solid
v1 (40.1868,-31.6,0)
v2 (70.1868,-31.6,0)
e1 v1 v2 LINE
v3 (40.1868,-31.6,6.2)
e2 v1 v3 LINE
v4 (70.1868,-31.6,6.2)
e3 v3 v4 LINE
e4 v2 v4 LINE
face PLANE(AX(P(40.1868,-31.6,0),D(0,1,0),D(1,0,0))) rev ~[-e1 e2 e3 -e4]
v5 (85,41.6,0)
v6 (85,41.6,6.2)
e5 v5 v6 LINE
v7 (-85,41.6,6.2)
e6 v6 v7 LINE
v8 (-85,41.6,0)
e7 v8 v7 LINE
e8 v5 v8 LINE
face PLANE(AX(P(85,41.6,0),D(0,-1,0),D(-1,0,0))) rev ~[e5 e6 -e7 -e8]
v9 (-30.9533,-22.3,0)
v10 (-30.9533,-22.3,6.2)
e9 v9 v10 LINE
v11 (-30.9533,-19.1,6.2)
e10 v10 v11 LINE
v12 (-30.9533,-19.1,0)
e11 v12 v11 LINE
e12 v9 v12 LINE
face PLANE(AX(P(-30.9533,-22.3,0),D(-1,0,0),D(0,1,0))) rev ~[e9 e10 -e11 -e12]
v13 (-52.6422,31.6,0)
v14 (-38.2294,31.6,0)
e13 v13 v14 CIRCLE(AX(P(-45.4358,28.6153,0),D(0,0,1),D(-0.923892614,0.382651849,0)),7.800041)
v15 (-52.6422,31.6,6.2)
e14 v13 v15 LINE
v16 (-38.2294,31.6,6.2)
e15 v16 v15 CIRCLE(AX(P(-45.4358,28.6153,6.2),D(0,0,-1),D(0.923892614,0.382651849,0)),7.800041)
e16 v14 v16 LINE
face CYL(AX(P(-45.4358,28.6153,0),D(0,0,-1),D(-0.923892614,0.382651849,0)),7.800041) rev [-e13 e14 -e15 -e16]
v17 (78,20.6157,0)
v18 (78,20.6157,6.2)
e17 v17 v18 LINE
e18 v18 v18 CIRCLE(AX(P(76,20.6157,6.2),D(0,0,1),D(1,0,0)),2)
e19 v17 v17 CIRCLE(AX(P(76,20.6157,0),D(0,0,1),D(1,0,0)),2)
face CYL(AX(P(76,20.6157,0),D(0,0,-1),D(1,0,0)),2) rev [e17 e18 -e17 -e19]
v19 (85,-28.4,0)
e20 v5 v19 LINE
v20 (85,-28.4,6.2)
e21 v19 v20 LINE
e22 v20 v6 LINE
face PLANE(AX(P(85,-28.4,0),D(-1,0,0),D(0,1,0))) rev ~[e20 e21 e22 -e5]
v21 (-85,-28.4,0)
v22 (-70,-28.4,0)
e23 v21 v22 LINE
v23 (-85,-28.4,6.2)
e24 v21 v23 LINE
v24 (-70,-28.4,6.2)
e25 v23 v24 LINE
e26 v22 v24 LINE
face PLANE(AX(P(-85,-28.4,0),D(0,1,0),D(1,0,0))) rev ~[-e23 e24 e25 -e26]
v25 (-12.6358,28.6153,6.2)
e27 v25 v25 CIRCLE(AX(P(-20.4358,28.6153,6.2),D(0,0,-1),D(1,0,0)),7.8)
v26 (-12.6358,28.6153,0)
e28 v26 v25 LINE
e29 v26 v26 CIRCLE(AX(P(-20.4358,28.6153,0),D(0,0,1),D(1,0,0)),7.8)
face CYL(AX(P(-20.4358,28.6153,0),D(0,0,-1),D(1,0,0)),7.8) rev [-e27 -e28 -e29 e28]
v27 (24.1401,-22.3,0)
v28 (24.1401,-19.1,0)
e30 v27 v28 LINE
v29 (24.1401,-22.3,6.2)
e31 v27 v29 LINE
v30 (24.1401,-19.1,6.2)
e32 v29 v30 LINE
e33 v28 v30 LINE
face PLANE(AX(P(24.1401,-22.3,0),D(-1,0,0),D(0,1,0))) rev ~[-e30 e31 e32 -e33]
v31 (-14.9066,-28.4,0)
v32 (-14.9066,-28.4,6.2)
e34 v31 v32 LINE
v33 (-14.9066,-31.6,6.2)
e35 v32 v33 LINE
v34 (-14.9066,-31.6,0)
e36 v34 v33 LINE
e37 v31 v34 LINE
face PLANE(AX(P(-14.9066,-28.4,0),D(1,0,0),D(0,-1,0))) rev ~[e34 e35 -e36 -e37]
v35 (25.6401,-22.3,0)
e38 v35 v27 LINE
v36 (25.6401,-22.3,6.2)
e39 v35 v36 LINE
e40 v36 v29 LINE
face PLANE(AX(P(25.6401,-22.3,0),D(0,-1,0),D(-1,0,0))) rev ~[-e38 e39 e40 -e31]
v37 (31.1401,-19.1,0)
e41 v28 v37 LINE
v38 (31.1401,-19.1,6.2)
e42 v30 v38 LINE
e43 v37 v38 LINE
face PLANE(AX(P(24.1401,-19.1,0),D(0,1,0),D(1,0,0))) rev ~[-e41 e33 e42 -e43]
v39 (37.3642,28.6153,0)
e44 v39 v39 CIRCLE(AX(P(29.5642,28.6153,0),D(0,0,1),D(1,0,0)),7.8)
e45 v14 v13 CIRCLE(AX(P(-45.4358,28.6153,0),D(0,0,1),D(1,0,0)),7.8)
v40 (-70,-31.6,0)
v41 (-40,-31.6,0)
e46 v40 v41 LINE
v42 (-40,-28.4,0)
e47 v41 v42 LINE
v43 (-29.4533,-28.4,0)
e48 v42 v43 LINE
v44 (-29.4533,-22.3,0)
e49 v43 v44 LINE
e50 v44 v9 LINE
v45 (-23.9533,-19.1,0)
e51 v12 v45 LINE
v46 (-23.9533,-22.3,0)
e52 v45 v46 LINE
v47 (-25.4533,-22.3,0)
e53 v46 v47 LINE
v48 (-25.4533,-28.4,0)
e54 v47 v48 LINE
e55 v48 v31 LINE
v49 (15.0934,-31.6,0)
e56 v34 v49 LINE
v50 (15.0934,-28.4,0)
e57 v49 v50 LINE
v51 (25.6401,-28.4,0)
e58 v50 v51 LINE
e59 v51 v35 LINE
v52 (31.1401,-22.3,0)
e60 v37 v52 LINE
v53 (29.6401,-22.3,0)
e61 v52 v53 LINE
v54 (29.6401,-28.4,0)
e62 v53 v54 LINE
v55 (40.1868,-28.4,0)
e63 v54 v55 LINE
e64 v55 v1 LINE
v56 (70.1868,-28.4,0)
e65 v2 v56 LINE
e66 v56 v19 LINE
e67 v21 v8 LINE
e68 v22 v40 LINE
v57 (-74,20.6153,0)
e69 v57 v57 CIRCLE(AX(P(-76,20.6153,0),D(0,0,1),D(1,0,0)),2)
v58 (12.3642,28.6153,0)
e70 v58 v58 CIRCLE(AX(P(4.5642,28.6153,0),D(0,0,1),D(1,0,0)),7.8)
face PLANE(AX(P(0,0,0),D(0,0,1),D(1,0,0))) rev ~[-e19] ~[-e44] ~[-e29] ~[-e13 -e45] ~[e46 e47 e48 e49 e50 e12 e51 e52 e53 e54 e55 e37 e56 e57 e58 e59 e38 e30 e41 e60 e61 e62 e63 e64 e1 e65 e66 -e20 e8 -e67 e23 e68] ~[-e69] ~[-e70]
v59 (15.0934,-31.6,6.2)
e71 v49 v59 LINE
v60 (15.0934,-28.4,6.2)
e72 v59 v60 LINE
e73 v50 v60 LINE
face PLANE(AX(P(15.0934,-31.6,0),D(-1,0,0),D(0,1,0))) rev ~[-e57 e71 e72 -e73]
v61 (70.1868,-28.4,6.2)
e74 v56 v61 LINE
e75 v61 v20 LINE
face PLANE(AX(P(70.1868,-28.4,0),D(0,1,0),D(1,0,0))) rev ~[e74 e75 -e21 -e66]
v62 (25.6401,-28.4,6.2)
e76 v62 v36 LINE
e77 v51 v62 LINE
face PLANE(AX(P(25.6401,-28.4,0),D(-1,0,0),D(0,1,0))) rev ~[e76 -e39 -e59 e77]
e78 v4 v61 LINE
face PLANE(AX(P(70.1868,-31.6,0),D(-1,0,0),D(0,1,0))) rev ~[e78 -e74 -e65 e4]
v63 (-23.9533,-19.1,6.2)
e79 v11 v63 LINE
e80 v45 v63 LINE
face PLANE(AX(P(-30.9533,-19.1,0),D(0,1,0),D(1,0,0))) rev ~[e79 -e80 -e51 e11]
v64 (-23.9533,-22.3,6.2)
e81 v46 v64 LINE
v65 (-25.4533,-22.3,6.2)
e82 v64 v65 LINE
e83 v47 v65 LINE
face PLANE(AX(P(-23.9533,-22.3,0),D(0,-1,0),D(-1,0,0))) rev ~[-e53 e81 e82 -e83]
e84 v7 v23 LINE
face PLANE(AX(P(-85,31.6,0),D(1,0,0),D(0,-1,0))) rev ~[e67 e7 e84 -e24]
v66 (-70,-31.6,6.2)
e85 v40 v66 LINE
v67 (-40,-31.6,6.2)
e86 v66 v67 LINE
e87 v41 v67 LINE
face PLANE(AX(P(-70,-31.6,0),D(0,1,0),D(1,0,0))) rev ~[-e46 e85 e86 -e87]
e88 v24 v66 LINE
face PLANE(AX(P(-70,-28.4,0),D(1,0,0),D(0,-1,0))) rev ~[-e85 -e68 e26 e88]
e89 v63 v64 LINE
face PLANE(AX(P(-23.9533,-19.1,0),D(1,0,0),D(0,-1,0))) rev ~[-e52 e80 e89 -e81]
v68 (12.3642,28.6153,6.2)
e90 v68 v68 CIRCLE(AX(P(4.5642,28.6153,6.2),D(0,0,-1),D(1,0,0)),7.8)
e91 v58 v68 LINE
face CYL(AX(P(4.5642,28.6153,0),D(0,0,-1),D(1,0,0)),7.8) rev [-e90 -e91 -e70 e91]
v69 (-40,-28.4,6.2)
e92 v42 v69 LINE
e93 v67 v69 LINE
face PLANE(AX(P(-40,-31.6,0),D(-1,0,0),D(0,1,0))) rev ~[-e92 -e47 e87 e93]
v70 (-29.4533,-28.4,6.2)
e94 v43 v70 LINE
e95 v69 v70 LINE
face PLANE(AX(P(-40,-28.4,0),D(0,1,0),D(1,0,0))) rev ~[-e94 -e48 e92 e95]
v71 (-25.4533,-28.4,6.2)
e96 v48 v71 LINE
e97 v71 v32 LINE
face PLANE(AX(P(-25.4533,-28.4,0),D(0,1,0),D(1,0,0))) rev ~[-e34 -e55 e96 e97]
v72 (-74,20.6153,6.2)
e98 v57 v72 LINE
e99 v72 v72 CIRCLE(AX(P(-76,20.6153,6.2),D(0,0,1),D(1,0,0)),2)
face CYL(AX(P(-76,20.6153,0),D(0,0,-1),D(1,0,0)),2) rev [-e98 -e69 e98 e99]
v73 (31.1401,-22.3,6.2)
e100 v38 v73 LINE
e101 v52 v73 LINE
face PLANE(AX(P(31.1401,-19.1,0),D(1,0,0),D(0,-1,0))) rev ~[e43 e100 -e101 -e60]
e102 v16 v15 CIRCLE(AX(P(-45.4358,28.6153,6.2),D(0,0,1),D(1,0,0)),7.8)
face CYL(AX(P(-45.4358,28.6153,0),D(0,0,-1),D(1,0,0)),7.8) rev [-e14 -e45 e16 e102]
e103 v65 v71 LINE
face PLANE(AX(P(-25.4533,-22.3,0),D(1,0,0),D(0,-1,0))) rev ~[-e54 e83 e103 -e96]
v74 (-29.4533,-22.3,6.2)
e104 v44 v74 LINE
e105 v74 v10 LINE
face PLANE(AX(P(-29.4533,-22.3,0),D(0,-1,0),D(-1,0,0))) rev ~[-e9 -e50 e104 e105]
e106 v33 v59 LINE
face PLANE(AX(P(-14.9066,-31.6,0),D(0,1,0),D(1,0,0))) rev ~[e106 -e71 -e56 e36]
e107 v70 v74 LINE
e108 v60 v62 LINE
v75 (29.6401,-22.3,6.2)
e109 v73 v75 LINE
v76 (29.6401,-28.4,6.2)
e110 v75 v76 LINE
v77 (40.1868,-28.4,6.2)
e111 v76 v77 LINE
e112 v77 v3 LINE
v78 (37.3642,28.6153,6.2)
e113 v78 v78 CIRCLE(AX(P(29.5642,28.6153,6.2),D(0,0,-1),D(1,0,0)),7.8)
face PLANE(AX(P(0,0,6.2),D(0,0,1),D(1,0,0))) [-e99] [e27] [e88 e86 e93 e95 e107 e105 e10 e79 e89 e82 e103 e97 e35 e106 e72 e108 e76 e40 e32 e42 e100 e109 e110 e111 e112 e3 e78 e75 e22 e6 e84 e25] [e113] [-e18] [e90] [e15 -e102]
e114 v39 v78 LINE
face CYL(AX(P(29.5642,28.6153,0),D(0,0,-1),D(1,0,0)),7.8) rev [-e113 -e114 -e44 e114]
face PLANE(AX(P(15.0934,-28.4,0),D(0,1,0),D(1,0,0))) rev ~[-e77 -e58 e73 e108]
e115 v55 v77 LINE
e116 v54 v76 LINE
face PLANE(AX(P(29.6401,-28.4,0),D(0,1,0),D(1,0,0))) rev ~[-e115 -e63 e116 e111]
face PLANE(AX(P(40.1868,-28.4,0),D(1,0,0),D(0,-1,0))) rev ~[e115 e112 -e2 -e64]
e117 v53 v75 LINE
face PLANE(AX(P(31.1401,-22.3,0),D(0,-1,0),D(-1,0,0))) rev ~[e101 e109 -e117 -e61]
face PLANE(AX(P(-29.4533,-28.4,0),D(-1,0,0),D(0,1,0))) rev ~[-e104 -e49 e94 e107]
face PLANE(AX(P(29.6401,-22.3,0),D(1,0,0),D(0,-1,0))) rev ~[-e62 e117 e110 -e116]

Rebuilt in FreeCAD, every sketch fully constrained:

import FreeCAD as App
import Part
import Sketcher

V = App.Vector
Q = App.Units.Quantity

doc = App.newDocument("Part")
body = doc.addObject("PartDesign::Body", "Body")

sketch1 = doc.addObject("Sketcher::SketchObject", "Sketch")
body.addObject(sketch1)
sketch1.AttachmentSupport = (doc.XY_Plane, [""])
sketch1.MapMode = "FlatFace"
sketch1.addGeometry(Part.LineSegment(V(15.0934, -28.4, 0), V(25.6401, -28.4, 0)), False)
sketch1.addGeometry(Part.LineSegment(V(25.6401, -28.4, 0), V(25.6401, -22.3, 0)), False)
sketch1.addGeometry(Part.LineSegment(V(25.6401, -22.3, 0), V(24.1401, -22.3, 0)), False)
sketch1.addGeometry(Part.LineSegment(V(24.1401, -22.3, 0), V(24.1401, -19.1, 0)), False)
sketch1.addGeometry(Part.LineSegment(V(24.1401, -19.1, 0), V(31.1401, -19.1, 0)), False)
sketch1.addGeometry(Part.LineSegment(V(31.1401, -19.1, 0), V(31.1401, -22.3, 0)), False)
sketch1.addGeometry(Part.LineSegment(V(31.1401, -22.3, 0), V(29.6401, -22.3, 0)), False)
sketch1.addGeometry(Part.LineSegment(V(29.6401, -22.3, 0), V(29.6401, -28.4, 0)), False)
sketch1.addGeometry(Part.LineSegment(V(29.6401, -28.4, 0), V(40.1868, -28.4, 0)), False)
sketch1.addGeometry(Part.LineSegment(V(40.1868, -28.4, 0), V(40.1868, -31.6, 0)), False)
sketch1.addGeometry(Part.LineSegment(V(40.1868, -31.6, 0), V(70.1868, -31.6, 0)), False)
sketch1.addGeometry(Part.LineSegment(V(70.1868, -31.6, 0), V(70.1868, -28.4, 0)), False)
sketch1.addGeometry(Part.LineSegment(V(70.1868, -28.4, 0), V(85, -28.4, 0)), False)
sketch1.addGeometry(Part.LineSegment(V(85, -28.4, 0), V(85, 41.6, 0)), False)
sketch1.addGeometry(Part.LineSegment(V(85, 41.6, 0), V(-85, 41.6, 0)), False)
sketch1.addGeometry(Part.LineSegment(V(-85, 41.6, 0), V(-85, -28.4, 0)), False)
sketch1.addGeometry(Part.LineSegment(V(-85, -28.4, 0), V(-70, -28.4, 0)), False)
sketch1.addGeometry(Part.LineSegment(V(-70, -28.4, 0), V(-70, -31.6, 0)), False)
sketch1.addGeometry(Part.LineSegment(V(-70, -31.6, 0), V(-40, -31.6, 0)), False)
sketch1.addGeometry(Part.LineSegment(V(-40, -31.6, 0), V(-40, -28.4, 0)), False)
sketch1.addGeometry(Part.LineSegment(V(-40, -28.4, 0), V(-29.4533, -28.4, 0)), False)
sketch1.addGeometry(Part.LineSegment(V(-29.4533, -28.4, 0), V(-29.4533, -22.3, 0)), False)
sketch1.addGeometry(Part.LineSegment(V(-29.4533, -22.3, 0), V(-30.9533, -22.3, 0)), False)
sketch1.addGeometry(Part.LineSegment(V(-30.9533, -22.3, 0), V(-30.9533, -19.1, 0)), False)
sketch1.addGeometry(Part.LineSegment(V(-30.9533, -19.1, 0), V(-23.9533, -19.1, 0)), False)
sketch1.addGeometry(Part.LineSegment(V(-23.9533, -19.1, 0), V(-23.9533, -22.3, 0)), False)
sketch1.addGeometry(Part.LineSegment(V(-23.9533, -22.3, 0), V(-25.4533, -22.3, 0)), False)
sketch1.addGeometry(Part.LineSegment(V(-25.4533, -22.3, 0), V(-25.4533, -28.4, 0)), False)
sketch1.addGeometry(Part.LineSegment(V(-25.4533, -28.4, 0), V(-14.9066, -28.4, 0)), False)
sketch1.addGeometry(Part.LineSegment(V(-14.9066, -28.4, 0), V(-14.9066, -31.6, 0)), False)
sketch1.addGeometry(Part.LineSegment(V(-14.9066, -31.6, 0), V(15.0934, -31.6, 0)), False)
sketch1.addGeometry(Part.LineSegment(V(15.0934, -31.6, 0), V(15.0934, -28.4, 0)), False)
sketch1.addGeometry(Part.Circle(V(-45.4358, 28.6153, 0), V(0, 0, 1), 7.8), False)
sketch1.addGeometry(Part.Circle(V(-20.4358, 28.6153, 0), V(0, 0, 1), 7.8), False)
sketch1.addGeometry(Part.Circle(V(4.5642, 28.6153, 0), V(0, 0, 1), 7.8), False)
sketch1.addGeometry(Part.Circle(V(29.5642, 28.6153, 0), V(0, 0, 1), 7.8), False)
sketch1.addGeometry(Part.Circle(V(-76, 20.6153, 0), V(0, 0, 1), 2), False)
sketch1.addGeometry(Part.Circle(V(76, 20.6157, 0), V(0, 0, 1), 2), False)
sketch1.addConstraint(Sketcher.Constraint("Coincident", 0, 2, 1, 1))
sketch1.addConstraint(Sketcher.Constraint("Coincident", 1, 2, 2, 1))
sketch1.addConstraint(Sketcher.Constraint("Coincident", 2, 2, 3, 1))
sketch1.addConstraint(Sketcher.Constraint("Coincident", 3, 2, 4, 1))
sketch1.addConstraint(Sketcher.Constraint("Coincident", 4, 2, 5, 1))
sketch1.addConstraint(Sketcher.Constraint("Coincident", 5, 2, 6, 1))
sketch1.addConstraint(Sketcher.Constraint("Coincident", 6, 2, 7, 1))
sketch1.addConstraint(Sketcher.Constraint("Coincident", 7, 2, 8, 1))
sketch1.addConstraint(Sketcher.Constraint("Coincident", 8, 2, 9, 1))
sketch1.addConstraint(Sketcher.Constraint("Coincident", 9, 2, 10, 1))
sketch1.addConstraint(Sketcher.Constraint("Coincident", 10, 2, 11, 1))
sketch1.addConstraint(Sketcher.Constraint("Coincident", 11, 2, 12, 1))
sketch1.addConstraint(Sketcher.Constraint("Coincident", 12, 2, 13, 1))
sketch1.addConstraint(Sketcher.Constraint("Coincident", 13, 2, 14, 1))
sketch1.addConstraint(Sketcher.Constraint("Coincident", 14, 2, 15, 1))
sketch1.addConstraint(Sketcher.Constraint("Coincident", 15, 2, 16, 1))
sketch1.addConstraint(Sketcher.Constraint("Coincident", 16, 2, 17, 1))
sketch1.addConstraint(Sketcher.Constraint("Coincident", 17, 2, 18, 1))
sketch1.addConstraint(Sketcher.Constraint("Coincident", 18, 2, 19, 1))
sketch1.addConstraint(Sketcher.Constraint("Coincident", 19, 2, 20, 1))
sketch1.addConstraint(Sketcher.Constraint("Coincident", 20, 2, 21, 1))
sketch1.addConstraint(Sketcher.Constraint("Coincident", 21, 2, 22, 1))
sketch1.addConstraint(Sketcher.Constraint("Coincident", 22, 2, 23, 1))
sketch1.addConstraint(Sketcher.Constraint("Coincident", 23, 2, 24, 1))
sketch1.addConstraint(Sketcher.Constraint("Coincident", 24, 2, 25, 1))
sketch1.addConstraint(Sketcher.Constraint("Coincident", 25, 2, 26, 1))
sketch1.addConstraint(Sketcher.Constraint("Coincident", 26, 2, 27, 1))
sketch1.addConstraint(Sketcher.Constraint("Coincident", 27, 2, 28, 1))
sketch1.addConstraint(Sketcher.Constraint("Coincident", 28, 2, 29, 1))
sketch1.addConstraint(Sketcher.Constraint("Coincident", 29, 2, 30, 1))
sketch1.addConstraint(Sketcher.Constraint("Coincident", 30, 2, 31, 1))
sketch1.addConstraint(Sketcher.Constraint("Coincident", 31, 2, 0, 1))
sketch1.addConstraint(Sketcher.Constraint("Horizontal", 0))
sketch1.addConstraint(Sketcher.Constraint("Vertical", 1))
sketch1.addConstraint(Sketcher.Constraint("Horizontal", 2))
sketch1.addConstraint(Sketcher.Constraint("Vertical", 3))
sketch1.addConstraint(Sketcher.Constraint("Horizontal", 4))
sketch1.addConstraint(Sketcher.Constraint("Vertical", 5))
sketch1.addConstraint(Sketcher.Constraint("Horizontal", 6))
sketch1.addConstraint(Sketcher.Constraint("Vertical", 7))
sketch1.addConstraint(Sketcher.Constraint("Horizontal", 8))
sketch1.addConstraint(Sketcher.Constraint("Vertical", 9))
sketch1.addConstraint(Sketcher.Constraint("Horizontal", 10))
sketch1.addConstraint(Sketcher.Constraint("Vertical", 11))
sketch1.addConstraint(Sketcher.Constraint("Horizontal", 12))
sketch1.addConstraint(Sketcher.Constraint("Vertical", 13))
sketch1.addConstraint(Sketcher.Constraint("Horizontal", 14))
sketch1.addConstraint(Sketcher.Constraint("Vertical", 15))
sketch1.addConstraint(Sketcher.Constraint("Horizontal", 16))
sketch1.addConstraint(Sketcher.Constraint("Vertical", 17))
sketch1.addConstraint(Sketcher.Constraint("Horizontal", 18))
sketch1.addConstraint(Sketcher.Constraint("Vertical", 19))
sketch1.addConstraint(Sketcher.Constraint("Horizontal", 20))
sketch1.addConstraint(Sketcher.Constraint("Vertical", 21))
sketch1.addConstraint(Sketcher.Constraint("Horizontal", 22))
sketch1.addConstraint(Sketcher.Constraint("Vertical", 23))
sketch1.addConstraint(Sketcher.Constraint("Horizontal", 24))
sketch1.addConstraint(Sketcher.Constraint("Vertical", 25))
sketch1.addConstraint(Sketcher.Constraint("Horizontal", 26))
sketch1.addConstraint(Sketcher.Constraint("Vertical", 27))
sketch1.addConstraint(Sketcher.Constraint("Horizontal", 28))
sketch1.addConstraint(Sketcher.Constraint("Vertical", 29))
sketch1.addConstraint(Sketcher.Constraint("Horizontal", 30))
sketch1.addConstraint(Sketcher.Constraint("Vertical", 31))
sketch1.addConstraint(Sketcher.Constraint("Equal", 32, 33))
sketch1.addConstraint(Sketcher.Constraint("Equal", 33, 34))
sketch1.addConstraint(Sketcher.Constraint("Equal", 34, 35))
sketch1.addConstraint(Sketcher.Constraint("Equal", 36, 37))
sketch1.addConstraint(Sketcher.Constraint("Symmetric", 36, 3, 37, 3, -2))
sketch1.addConstraint(Sketcher.Constraint("Symmetric", 12, 2, 15, 2, -2))
sketch1.addConstraint(Sketcher.Constraint("Horizontal", 32, 3, 33, 3))
sketch1.addConstraint(Sketcher.Constraint("Horizontal", 33, 3, 34, 3))
sketch1.addConstraint(Sketcher.Constraint("Horizontal", 34, 3, 35, 3))
sketch1.addConstraint(Sketcher.Constraint("Horizontal", 2, 2, 5, 2))
sketch1.addConstraint(Sketcher.Constraint("Horizontal", 0, 2, 7, 2))
sketch1.addConstraint(Sketcher.Constraint("Horizontal", 8, 2, 11, 2))
sketch1.addConstraint(Sketcher.Constraint("Horizontal", 10, 2, 17, 2))
sketch1.addConstraint(Sketcher.Constraint("Horizontal", 16, 2, 19, 2))
sketch1.addConstraint(Sketcher.Constraint("Horizontal", 6, 2, 21, 2))
sketch1.addConstraint(Sketcher.Constraint("Horizontal", 4, 2, 23, 2))
sketch1.addConstraint(Sketcher.Constraint("Horizontal", 22, 2, 25, 2))
sketch1.addConstraint(Sketcher.Constraint("Horizontal", 20, 2, 27, 2))
sketch1.addConstraint(Sketcher.Constraint("Horizontal", 18, 2, 29, 2))
sketch1.addConstraint(Sketcher.Constraint("Equal", 2, 6))
sketch1.addConstraint(Sketcher.Constraint("Equal", 0, 8))
sketch1.addConstraint(Sketcher.Constraint("Equal", 10, 18))
sketch1.addConstraint(Sketcher.Constraint("Equal", 8, 20))
sketch1.addConstraint(Sketcher.Constraint("Equal", 6, 22))
sketch1.addConstraint(Sketcher.Constraint("Equal", 4, 24))
sketch1.addConstraint(Sketcher.Constraint("Equal", 22, 26))
sketch1.addConstraint(Sketcher.Constraint("Equal", 20, 28))
sketch1.addConstraint(Sketcher.Constraint("Equal", 18, 30))
sketch1.addConstraint(Sketcher.Constraint("Equal", 5, 9))
sketch1.addConstraint(Sketcher.Constraint("DistanceY", 13, 1, 13, 2, Q("70 mm")))
sketch1.addConstraint(Sketcher.Constraint("Diameter", 36, Q("4 mm")))
sketch1.addConstraint(Sketcher.Constraint("DistanceX", 16, 2, -1, 1, Q("70 mm")))
sketch1.addConstraint(Sketcher.Constraint("DistanceX", 32, 3, 33, 3, Q("25 mm")))
sketch1.addConstraint(Sketcher.Constraint("DistanceX", 33, 3, 34, 3, Q("25 mm")))
sketch1.addConstraint(Sketcher.Constraint("DistanceX", 34, 3, 35, 3, Q("25 mm")))
sketch1.addConstraint(Sketcher.Constraint("Diameter", 32, Q("15.6 mm")))
sketch1.addConstraint(Sketcher.Constraint("DistanceX", 4, 1, 4, 2, Q("7 mm")))
sketch1.addConstraint(Sketcher.Constraint("DistanceX", 10, 1, 10, 2, Q("30 mm")))
sketch1.addConstraint(Sketcher.Constraint("DistanceX", 14, 2, 14, 1, Q("170 mm")))
sketch1.addConstraint(Sketcher.Constraint("DistanceX", 2, 2, 2, 1, Q("1.5 mm")))
sketch1.addConstraint(Sketcher.Constraint("DistanceY", 1, 1, 1, 2, Q("6.1 mm")))
sketch1.addConstraint(Sketcher.Constraint("DistanceY", 3, 1, 3, 2, Q("3.2 mm")))
sketch1.addConstraint(Sketcher.Constraint("DistanceX", 36, 3, -1, 1, Q("76 mm")))
sketch1.addConstraint(Sketcher.Constraint("DistanceY", 36, 3, 32, 3, Q("8 mm")))
sketch1.addConstraint(Sketcher.Constraint("DistanceY", 0, 2, -1, 1, Q("28.4 mm")))
sketch1.addConstraint(Sketcher.Constraint("DistanceX", -1, 1, 0, 2, Q("25.64 mm")))
sketch1.addConstraint(Sketcher.Constraint("DistanceX", 0, 2, 35, 3, Q("3.924 mm")))
sketch1.addConstraint(Sketcher.Constraint("DistanceY", -1, 1, 32, 3, Q("28.6153 mm")))
pad1 = doc.addObject("PartDesign::Pad", "Pad")
body.addObject(pad1)
pad1.Profile = sketch1
pad1.Length = 6.2

doc.recompute()
